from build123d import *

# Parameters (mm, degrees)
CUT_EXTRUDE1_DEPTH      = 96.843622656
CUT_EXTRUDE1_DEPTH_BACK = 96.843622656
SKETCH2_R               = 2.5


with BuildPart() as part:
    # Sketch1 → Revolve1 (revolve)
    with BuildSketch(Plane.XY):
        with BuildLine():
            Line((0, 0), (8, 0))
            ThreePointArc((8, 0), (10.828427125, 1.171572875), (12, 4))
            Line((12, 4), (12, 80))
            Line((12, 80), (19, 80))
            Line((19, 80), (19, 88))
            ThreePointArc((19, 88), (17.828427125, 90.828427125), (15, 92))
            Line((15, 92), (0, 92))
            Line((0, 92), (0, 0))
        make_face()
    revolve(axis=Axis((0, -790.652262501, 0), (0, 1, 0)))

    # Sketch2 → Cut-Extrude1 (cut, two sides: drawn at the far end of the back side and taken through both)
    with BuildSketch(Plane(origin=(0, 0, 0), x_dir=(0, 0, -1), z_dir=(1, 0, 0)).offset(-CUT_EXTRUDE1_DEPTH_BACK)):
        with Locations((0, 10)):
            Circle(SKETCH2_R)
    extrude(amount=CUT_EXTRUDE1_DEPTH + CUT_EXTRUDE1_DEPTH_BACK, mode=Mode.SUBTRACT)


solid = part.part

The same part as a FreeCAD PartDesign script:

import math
import FreeCAD as App
import Part
import Sketcher

V = App.Vector
Q = App.Units.Quantity

doc = App.newDocument("Part")
body = doc.addObject("PartDesign::Body", "Body")

sketch1 = body.newObject("Sketcher::SketchObject", "Sketch")
sketch1.AttachmentSupport = (doc.getObject("XY_Plane"), [""])
sketch1.MapMode = "FlatFace"
sketch1.addGeometry(Part.LineSegment(V(0, 0, 0), V(8, 0, 0)), False)
sketch1.addGeometry(Part.ArcOfCircle(Part.Circle(V(8, 4, 0), V(0, 0, 1), 4), math.radians(-90), math.radians(0)), False)
sketch1.addGeometry(Part.LineSegment(V(12, 4, 0), V(12, 80, 0)), False)
sketch1.addGeometry(Part.LineSegment(V(12, 80, 0), V(19, 80, 0)), False)
sketch1.addGeometry(Part.LineSegment(V(19, 80, 0), V(19, 88, 0)), False)
sketch1.addGeometry(Part.ArcOfCircle(Part.Circle(V(15, 88, 0), V(0, 0, 1), 4), math.radians(0), math.radians(90)), False)
sketch1.addGeometry(Part.LineSegment(V(15, 92, 0), V(0, 92, 0)), False)
sketch1.addGeometry(Part.LineSegment(V(0, 92, 0), V(0, 0, 0)), False)
sketch1.addConstraint(Sketcher.Constraint("Tangent", 0, 2, 1, 1))
sketch1.addConstraint(Sketcher.Constraint("Tangent", 1, 2, 2, 1))
sketch1.addConstraint(Sketcher.Constraint("Coincident", 2, 2, 3, 1))
sketch1.addConstraint(Sketcher.Constraint("Coincident", 3, 2, 4, 1))
sketch1.addConstraint(Sketcher.Constraint("Tangent", 4, 2, 5, 1))
sketch1.addConstraint(Sketcher.Constraint("Tangent", 5, 2, 6, 1))
sketch1.addConstraint(Sketcher.Constraint("Coincident", 6, 2, 7, 1))
sketch1.addConstraint(Sketcher.Constraint("Coincident", 7, 2, 0, 1))
sketch1.addConstraint(Sketcher.Constraint("Horizontal", 0))
sketch1.addConstraint(Sketcher.Constraint("Vertical", 2))
sketch1.addConstraint(Sketcher.Constraint("Horizontal", 3))
sketch1.addConstraint(Sketcher.Constraint("Vertical", 4))
sketch1.addConstraint(Sketcher.Constraint("Horizontal", 6))
sketch1.addConstraint(Sketcher.Constraint("Vertical", 7))
sketch1.addConstraint(Sketcher.Constraint("Coincident", 7, 2, -1, 1))
sketch1.addConstraint(Sketcher.Constraint("Equal", 1, 5))
sketch1.addConstraint(Sketcher.Constraint("Equal", 0, 4))
sketch1.addConstraint(Sketcher.Constraint("Radius", 1, Q("4 mm")))
sketch1.addConstraint(Sketcher.Constraint("DistanceX", 0, 1, 0, 2, Q("8 mm")))
sketch1.addConstraint(Sketcher.Constraint("DistanceX", 3, 1, 3, 2, Q("7 mm")))
sketch1.addConstraint(Sketcher.Constraint("DistanceY", 2, 1, 2, 2, Q("76 mm")))
revolution = body.newObject("PartDesign::Revolution", "Revolution")
revolution.Profile = sketch1
revolution.ReferenceAxis = (sketch1, ["V_Axis"])
revolution.Angle = 360

sketch2 = body.newObject("Sketcher::SketchObject", "Sketch001")
sketch2.AttachmentSupport = (doc.getObject("YZ_Plane"), [""])
sketch2.MapMode = "FlatFace"
sketch2.addGeometry(Part.Circle(V(10, 0, 0), V(0, 0, 1), 2.5), False)
sketch2.addConstraint(Sketcher.Constraint("PointOnObject", 0, 3, -1))
sketch2.addConstraint(Sketcher.Constraint("Diameter", 0, Q("5 mm")))
sketch2.addConstraint(Sketcher.Constraint("DistanceX", -1, 1, 0, 3, Q("10 mm")))
pocket1 = body.newObject("PartDesign::Pocket", "Pocket")
pocket1.Profile = sketch2
pocket1.Type = "ThroughAll"
pocket1.Midplane = True

doc.recompute()
